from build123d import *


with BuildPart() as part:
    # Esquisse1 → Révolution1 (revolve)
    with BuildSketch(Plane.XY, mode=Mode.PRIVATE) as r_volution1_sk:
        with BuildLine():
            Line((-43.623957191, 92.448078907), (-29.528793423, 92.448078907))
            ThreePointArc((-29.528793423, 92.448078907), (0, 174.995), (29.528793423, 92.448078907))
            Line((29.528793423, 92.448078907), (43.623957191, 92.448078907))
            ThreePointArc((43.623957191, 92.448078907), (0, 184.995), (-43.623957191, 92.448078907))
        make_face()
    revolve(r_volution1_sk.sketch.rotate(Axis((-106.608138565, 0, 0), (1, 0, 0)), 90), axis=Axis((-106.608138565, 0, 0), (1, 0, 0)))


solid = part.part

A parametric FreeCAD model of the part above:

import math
import FreeCAD as App
import Part
import Sketcher
from FreeCAD import Vector
Q = App.Units.Quantity

doc = App.newDocument("Part")
body = doc.addObject("PartDesign::Body", "Body")

sketch1 = body.newObject("Sketcher::SketchObject", "Sketch")
sketch1.AttachmentSupport = (doc.getObject("XY_Plane"), [""])
sketch1.MapMode = "FlatFace"
sketch1.addGeometry([
    Part.LineSegment(Vector(-44, 92, 0), Vector(-30, 92, 0)),
    Part.ArcOfCircle(Part.Circle(Vector(0, 128, 0), Vector(0, 0, 1), 47), math.radians(-51), math.radians(231)),
    Part.LineSegment(Vector(30, 92, 0), Vector(44, 92, 0)),
    Part.ArcOfCircle(Part.Circle(Vector(0, 128, 0), Vector(0, 0, 1), 57), math.radians(-40), math.radians(220)),
], False)
sketch1.addConstraint([
    Sketcher.Constraint("Coincident", 0, 2, 1, 2),
    Sketcher.Constraint("Coincident", 1, 1, 2, 1),
    Sketcher.Constraint("Coincident", 2, 2, 3, 1),
    Sketcher.Constraint("Coincident", 3, 2, 0, 1),
    Sketcher.Constraint("Horizontal", 0),
    Sketcher.Constraint("Horizontal", 2),
    Sketcher.Constraint("Coincident", 3, 3, 1, 3),
    Sketcher.Constraint("Symmetric", 0, 2, 1, 1, -2),
    Sketcher.Constraint("Radius", 1, Q("46.555 mm")),
    Sketcher.Constraint("Radius", 3, Q("56.555 mm")),
    Sketcher.Constraint("DistanceY", -1, 1, 1, 3, Q("128.44 mm")),
    Sketcher.Constraint("DistanceX", 0, 1, 0, 2, Q("14.095164 mm")),
])
revolution = body.newObject("PartDesign::Revolution", "Revolution")
revolution.Profile = sketch1
revolution.ReferenceAxis = (sketch1, ["H_Axis"])
revolution.Angle = 360

doc.recompute()
